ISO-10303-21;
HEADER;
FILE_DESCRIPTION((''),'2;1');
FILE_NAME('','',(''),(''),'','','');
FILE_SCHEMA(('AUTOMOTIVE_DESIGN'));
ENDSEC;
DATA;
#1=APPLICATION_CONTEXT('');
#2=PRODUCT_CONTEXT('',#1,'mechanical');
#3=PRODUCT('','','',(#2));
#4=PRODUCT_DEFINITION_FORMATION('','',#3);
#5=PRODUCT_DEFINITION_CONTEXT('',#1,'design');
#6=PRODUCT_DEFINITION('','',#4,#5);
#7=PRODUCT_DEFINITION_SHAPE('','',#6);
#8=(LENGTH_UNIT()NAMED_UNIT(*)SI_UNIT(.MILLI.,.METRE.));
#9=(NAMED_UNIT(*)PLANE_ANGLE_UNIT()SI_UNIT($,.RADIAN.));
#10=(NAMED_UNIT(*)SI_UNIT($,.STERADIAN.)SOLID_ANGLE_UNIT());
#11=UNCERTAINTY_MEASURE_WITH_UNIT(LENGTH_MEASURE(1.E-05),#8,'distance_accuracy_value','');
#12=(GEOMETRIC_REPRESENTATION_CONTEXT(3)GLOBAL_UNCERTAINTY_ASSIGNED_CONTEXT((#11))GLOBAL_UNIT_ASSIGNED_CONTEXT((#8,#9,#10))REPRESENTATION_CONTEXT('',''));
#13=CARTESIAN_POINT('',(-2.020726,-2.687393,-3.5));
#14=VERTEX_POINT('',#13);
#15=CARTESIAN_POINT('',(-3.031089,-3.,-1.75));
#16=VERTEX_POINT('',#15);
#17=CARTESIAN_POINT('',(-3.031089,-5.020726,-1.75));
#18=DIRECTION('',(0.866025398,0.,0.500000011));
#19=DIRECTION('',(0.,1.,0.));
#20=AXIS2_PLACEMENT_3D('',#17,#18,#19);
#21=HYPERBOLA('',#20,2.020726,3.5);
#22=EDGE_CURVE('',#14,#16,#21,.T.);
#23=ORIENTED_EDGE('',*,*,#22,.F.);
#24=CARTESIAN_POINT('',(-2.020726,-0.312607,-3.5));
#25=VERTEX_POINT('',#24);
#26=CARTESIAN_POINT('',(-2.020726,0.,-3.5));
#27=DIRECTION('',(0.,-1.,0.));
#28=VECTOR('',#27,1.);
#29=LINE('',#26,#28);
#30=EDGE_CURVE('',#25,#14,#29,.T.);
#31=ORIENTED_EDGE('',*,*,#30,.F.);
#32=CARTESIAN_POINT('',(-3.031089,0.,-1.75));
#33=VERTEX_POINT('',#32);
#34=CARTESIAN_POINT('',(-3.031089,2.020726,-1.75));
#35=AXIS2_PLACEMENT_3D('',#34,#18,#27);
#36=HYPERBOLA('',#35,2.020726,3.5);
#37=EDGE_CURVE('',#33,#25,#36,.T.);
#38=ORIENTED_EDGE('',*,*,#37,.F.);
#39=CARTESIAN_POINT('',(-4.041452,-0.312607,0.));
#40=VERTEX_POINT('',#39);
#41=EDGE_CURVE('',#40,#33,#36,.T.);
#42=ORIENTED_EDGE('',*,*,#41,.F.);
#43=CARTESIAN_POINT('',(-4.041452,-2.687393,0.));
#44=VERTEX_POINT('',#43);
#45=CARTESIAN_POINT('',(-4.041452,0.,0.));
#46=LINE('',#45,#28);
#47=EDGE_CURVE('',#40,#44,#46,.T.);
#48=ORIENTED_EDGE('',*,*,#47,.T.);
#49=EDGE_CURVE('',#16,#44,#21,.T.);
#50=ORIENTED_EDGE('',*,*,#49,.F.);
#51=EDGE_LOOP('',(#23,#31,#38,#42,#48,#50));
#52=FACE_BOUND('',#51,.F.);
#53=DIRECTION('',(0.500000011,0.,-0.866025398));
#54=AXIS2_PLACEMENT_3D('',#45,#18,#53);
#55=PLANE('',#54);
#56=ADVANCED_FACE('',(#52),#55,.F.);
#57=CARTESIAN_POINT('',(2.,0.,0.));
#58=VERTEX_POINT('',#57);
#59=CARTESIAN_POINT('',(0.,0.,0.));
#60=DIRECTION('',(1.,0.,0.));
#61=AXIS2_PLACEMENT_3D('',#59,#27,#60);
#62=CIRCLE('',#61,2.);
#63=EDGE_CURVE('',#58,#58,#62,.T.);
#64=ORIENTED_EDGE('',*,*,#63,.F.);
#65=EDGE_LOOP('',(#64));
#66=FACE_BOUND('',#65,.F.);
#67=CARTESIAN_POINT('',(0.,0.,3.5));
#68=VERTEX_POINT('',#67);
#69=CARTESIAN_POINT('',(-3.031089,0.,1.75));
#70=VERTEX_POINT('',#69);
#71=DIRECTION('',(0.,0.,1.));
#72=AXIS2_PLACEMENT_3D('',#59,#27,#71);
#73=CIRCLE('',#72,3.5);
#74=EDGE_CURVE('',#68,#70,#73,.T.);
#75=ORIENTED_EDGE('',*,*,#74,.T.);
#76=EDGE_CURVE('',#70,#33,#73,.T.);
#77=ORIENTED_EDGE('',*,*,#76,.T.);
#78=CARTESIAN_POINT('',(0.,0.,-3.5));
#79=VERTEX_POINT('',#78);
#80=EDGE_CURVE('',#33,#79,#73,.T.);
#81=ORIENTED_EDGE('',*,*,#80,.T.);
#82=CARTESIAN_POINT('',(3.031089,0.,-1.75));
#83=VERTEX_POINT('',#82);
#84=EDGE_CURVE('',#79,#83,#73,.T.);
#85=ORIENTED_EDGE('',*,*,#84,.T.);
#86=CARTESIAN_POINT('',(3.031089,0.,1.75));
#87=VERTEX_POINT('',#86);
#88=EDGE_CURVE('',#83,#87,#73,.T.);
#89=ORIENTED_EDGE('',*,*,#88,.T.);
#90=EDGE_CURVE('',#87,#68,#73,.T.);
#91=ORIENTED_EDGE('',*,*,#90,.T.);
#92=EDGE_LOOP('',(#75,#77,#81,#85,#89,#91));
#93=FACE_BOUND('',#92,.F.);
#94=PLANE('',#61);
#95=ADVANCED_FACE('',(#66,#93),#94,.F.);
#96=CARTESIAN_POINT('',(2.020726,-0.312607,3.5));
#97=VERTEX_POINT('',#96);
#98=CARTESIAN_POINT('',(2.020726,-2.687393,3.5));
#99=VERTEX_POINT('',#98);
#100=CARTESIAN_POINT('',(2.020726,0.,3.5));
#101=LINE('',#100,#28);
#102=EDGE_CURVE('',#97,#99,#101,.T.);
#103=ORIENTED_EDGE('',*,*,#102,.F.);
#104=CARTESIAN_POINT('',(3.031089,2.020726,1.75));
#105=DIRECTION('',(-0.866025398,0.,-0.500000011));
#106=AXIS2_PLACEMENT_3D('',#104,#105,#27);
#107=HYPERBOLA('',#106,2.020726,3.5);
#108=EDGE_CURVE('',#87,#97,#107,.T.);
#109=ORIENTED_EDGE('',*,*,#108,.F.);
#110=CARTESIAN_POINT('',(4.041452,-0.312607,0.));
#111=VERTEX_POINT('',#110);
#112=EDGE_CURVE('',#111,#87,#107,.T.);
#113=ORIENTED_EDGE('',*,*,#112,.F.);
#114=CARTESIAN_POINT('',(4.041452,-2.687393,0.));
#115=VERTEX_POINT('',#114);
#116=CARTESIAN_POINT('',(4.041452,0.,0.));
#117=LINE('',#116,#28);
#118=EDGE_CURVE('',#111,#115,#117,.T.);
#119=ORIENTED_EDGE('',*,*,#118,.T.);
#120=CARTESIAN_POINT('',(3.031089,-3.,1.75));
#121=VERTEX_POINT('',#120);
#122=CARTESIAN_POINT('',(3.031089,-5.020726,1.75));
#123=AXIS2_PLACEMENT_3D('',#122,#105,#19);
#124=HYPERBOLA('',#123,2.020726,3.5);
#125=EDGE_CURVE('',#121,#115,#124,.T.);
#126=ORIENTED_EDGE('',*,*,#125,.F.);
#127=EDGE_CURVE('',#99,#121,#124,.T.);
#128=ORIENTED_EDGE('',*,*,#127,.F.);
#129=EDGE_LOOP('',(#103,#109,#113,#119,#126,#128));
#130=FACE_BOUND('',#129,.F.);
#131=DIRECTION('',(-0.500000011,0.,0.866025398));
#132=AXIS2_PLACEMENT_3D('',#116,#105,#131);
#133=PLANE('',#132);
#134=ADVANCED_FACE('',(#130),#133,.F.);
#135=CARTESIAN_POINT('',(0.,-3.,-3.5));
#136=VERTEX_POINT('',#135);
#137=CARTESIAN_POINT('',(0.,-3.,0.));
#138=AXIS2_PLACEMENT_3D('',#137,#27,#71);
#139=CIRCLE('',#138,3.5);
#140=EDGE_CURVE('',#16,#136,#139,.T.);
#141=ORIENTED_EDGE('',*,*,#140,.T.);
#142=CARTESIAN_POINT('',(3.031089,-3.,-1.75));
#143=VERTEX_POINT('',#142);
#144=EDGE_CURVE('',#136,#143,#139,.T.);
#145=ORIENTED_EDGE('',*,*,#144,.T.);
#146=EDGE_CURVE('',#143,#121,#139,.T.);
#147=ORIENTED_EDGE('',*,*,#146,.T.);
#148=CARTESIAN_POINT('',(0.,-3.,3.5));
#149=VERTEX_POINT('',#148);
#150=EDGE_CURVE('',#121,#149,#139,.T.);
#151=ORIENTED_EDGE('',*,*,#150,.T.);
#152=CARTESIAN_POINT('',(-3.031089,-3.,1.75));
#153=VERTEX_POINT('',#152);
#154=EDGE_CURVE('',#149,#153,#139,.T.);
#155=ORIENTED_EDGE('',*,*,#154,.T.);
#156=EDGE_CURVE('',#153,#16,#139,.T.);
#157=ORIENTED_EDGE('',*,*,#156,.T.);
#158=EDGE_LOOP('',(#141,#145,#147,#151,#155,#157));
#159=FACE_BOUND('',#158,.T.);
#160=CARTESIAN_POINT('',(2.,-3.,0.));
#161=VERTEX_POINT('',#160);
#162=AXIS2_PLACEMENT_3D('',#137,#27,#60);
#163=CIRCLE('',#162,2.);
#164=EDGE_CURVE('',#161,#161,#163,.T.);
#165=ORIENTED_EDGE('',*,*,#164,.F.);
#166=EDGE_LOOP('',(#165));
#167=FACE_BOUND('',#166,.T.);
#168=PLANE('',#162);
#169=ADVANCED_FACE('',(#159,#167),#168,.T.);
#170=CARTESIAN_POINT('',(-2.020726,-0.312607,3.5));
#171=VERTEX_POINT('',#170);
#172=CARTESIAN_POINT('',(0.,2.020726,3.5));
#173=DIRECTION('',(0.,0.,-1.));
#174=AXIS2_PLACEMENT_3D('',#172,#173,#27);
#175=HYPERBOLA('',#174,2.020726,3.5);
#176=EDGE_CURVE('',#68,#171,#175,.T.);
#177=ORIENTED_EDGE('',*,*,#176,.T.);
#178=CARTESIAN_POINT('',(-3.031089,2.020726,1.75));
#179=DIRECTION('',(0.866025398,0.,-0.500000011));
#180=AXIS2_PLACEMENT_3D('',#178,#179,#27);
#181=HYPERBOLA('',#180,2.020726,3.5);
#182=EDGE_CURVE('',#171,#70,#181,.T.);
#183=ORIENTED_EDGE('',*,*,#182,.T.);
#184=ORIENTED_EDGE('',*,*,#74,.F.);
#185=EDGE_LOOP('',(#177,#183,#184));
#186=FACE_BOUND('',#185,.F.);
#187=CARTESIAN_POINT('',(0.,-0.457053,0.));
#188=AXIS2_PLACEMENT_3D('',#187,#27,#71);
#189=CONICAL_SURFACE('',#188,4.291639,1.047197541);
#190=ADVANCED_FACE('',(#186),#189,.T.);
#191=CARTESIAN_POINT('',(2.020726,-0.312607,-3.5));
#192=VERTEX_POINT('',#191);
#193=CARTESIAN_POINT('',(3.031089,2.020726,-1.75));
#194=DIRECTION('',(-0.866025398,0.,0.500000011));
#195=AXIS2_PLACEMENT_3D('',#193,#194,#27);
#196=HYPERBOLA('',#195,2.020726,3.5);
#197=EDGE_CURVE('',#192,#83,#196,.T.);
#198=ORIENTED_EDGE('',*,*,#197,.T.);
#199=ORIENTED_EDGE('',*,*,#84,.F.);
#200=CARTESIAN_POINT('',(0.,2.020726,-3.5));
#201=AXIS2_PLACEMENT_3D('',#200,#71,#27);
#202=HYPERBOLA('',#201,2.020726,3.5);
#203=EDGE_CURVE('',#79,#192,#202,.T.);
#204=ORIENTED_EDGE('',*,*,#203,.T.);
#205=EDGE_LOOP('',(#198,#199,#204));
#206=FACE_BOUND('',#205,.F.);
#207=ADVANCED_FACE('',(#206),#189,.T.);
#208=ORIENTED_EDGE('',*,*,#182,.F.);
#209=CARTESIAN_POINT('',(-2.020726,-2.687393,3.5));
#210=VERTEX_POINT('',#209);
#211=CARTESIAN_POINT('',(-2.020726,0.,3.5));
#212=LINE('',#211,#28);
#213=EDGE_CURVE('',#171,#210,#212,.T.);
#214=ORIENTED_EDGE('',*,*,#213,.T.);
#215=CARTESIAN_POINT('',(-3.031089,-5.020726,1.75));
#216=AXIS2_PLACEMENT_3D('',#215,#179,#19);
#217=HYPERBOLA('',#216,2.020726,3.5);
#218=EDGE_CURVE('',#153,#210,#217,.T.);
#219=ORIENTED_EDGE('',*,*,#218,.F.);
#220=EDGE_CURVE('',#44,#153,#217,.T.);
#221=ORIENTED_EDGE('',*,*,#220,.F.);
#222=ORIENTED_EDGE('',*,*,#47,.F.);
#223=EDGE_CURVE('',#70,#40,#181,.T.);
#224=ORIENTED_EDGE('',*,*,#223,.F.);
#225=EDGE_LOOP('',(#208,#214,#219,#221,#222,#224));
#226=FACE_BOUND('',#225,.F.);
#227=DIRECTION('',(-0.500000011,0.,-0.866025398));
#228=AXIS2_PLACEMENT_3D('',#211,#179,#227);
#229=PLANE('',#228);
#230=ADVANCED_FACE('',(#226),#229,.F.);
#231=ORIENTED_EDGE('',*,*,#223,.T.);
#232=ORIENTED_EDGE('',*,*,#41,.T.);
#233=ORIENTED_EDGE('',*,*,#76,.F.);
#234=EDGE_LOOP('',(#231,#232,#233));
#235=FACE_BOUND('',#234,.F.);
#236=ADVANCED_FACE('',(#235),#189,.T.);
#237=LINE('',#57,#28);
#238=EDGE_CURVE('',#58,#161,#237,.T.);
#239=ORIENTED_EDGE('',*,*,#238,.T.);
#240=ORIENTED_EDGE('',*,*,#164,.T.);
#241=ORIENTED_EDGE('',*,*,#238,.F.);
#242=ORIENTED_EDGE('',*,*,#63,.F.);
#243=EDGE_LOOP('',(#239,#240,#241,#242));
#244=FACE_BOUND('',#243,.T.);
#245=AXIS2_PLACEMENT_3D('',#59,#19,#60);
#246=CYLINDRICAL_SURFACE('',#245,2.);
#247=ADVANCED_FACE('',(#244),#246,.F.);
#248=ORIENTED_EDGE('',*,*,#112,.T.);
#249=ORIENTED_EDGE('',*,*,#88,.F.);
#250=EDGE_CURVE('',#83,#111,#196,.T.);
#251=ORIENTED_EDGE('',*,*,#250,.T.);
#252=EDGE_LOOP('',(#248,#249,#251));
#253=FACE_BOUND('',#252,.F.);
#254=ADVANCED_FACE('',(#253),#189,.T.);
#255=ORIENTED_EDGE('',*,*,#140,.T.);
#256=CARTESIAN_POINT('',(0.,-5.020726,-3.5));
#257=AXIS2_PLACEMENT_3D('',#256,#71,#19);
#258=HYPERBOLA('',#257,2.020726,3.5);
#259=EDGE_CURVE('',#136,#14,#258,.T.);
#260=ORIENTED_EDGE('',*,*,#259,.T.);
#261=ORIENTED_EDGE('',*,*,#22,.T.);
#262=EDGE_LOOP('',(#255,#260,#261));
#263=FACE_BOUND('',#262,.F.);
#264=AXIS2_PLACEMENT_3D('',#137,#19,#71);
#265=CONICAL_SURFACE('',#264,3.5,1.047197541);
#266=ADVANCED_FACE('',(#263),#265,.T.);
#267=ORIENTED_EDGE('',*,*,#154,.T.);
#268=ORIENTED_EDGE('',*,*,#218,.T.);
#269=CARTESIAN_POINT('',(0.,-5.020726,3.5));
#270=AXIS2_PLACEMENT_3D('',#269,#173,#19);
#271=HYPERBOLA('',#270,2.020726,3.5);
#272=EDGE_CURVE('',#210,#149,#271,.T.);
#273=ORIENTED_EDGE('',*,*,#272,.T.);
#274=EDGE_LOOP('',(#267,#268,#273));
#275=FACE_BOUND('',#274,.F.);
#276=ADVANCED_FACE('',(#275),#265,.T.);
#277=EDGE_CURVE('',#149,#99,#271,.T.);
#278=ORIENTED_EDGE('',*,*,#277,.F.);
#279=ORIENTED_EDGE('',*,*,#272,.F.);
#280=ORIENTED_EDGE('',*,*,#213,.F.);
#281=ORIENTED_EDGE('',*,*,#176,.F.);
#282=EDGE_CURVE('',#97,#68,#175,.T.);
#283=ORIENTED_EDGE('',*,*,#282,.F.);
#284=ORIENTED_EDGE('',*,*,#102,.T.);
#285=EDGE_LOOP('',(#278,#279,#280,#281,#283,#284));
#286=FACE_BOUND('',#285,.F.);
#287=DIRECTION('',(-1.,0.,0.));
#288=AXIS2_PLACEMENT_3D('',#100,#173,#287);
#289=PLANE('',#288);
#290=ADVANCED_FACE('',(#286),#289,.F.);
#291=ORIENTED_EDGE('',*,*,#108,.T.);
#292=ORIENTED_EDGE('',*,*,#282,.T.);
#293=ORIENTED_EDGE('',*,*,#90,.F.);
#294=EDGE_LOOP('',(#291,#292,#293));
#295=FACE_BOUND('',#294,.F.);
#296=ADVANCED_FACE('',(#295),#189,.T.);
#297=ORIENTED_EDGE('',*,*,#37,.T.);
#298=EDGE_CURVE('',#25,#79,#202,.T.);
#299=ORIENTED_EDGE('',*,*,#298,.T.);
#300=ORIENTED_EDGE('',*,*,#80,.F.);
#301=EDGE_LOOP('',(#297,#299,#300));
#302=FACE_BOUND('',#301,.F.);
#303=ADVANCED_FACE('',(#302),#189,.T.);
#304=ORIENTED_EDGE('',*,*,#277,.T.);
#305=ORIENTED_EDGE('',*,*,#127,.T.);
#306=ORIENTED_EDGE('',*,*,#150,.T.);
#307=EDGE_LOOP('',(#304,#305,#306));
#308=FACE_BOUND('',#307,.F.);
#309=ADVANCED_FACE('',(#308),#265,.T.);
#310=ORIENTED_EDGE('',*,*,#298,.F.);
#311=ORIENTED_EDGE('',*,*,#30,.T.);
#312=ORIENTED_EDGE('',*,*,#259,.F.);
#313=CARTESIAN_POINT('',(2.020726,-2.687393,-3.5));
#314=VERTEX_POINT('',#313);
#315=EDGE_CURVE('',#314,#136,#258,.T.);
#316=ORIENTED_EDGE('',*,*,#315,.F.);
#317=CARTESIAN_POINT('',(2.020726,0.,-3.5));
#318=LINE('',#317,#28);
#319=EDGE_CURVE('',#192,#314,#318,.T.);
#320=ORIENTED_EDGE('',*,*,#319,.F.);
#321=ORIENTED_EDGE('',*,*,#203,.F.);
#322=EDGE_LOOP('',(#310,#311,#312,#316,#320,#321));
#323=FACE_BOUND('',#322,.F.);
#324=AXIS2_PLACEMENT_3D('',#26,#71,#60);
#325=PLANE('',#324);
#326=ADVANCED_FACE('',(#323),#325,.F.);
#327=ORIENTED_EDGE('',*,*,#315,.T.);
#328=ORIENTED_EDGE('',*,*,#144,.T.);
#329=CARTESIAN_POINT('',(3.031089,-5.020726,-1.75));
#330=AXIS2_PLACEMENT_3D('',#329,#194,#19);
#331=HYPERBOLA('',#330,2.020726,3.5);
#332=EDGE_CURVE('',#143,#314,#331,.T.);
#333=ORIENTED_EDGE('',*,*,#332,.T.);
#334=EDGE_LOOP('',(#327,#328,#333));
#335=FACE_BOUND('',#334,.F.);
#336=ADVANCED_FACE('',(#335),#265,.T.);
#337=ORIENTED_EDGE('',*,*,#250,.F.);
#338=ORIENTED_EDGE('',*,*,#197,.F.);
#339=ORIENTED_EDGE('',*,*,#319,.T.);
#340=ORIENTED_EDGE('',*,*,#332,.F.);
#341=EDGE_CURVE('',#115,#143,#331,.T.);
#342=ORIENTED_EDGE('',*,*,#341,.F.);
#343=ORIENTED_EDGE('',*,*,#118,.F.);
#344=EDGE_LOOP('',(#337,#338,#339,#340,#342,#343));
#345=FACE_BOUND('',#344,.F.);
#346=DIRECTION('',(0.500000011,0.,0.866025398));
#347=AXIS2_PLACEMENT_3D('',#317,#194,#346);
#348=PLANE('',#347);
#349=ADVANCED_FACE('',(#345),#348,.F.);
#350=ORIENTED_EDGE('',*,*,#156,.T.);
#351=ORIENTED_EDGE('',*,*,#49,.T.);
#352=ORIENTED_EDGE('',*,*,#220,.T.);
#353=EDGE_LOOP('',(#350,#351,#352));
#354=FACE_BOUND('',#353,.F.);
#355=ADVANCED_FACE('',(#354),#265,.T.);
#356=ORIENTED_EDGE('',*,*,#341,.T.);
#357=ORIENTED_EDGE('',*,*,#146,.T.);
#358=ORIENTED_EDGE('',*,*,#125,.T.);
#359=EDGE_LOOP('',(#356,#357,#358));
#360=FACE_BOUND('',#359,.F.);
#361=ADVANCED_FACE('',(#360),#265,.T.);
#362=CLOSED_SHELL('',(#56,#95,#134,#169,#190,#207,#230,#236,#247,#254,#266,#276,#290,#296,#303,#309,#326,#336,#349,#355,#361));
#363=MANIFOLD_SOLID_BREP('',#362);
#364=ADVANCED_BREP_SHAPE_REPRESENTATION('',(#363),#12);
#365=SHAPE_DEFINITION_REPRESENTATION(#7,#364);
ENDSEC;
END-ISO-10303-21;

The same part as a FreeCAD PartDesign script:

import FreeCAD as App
import Part
import Sketcher
from FreeCAD import Vector
Q = App.Units.Quantity

doc = App.newDocument("Part")
body = doc.addObject("PartDesign::Body", "Body")

# Sketch on XZ plane
sketch1 = body.newObject("Sketcher::SketchObject", "Sketch")
sketch1.AttachmentSupport = (doc.getObject("XZ_Plane"), [""])
sketch1.MapMode = "FlatFace"
sketch1.addGeometry(Part.LineSegment(Vector(2, 3.5, 0), Vector(-2, 3.5, 0)), False)
sketch1.addGeometry(Part.LineSegment(Vector(-2, 3.5, 0), Vector(-4, 0, 0)), False)
sketch1.addGeometry(Part.LineSegment(Vector(-4, 0, 0), Vector(-2, -3.5, 0)), False)
sketch1.addGeometry(Part.LineSegment(Vector(-2, -3.5, 0), Vector(2, -3.5, 0)), False)
sketch1.addGeometry(Part.LineSegment(Vector(2, -3.5, 0), Vector(4, 0, 0)), False)
sketch1.addGeometry(Part.LineSegment(Vector(4, 0, 0), Vector(2, 3.5, 0)), False)
sketch1.addGeometry(Part.Circle(Vector(0, 0, 0), Vector(0, 0, 1), 2), False)
sketch1.addConstraint(Sketcher.Constraint("Coincident", 0, 2, 1, 1))
sketch1.addConstraint(Sketcher.Constraint("Coincident", 1, 2, 2, 1))
sketch1.addConstraint(Sketcher.Constraint("Coincident", 2, 2, 3, 1))
sketch1.addConstraint(Sketcher.Constraint("Coincident", 3, 2, 4, 1))
sketch1.addConstraint(Sketcher.Constraint("Coincident", 4, 2, 5, 1))
sketch1.addConstraint(Sketcher.Constraint("Coincident", 5, 2, 0, 1))
sketch1.addConstraint(Sketcher.Constraint("Horizontal", 0))
sketch1.addConstraint(Sketcher.Constraint("Horizontal", 3))
sketch1.addConstraint(Sketcher.Constraint("Coincident", 6, 3, -1, 1))
sketch1.addConstraint(Sketcher.Constraint("Symmetric", 0, 2, 3, 2, -1, 1))
sketch1.addConstraint(Sketcher.Constraint("Symmetric", 1, 2, 4, 2, -1, 1))
sketch1.addConstraint(Sketcher.Constraint("PointOnObject", 1, 2, -1))
sketch1.addConstraint(Sketcher.Constraint("Parallel", 2, 5))
sketch1.addConstraint(Sketcher.Constraint("Vertical", 0, 2, 2, 2))
sketch1.addConstraint(Sketcher.Constraint("Diameter", 6, 4.0))
sketch1.addConstraint(Sketcher.Constraint("Angle", 1, Q("-120.000001 deg")))
sketch1.addConstraint(Sketcher.Constraint("DistanceY", 2, 2, 0, 2, 7.0))
sketch1.addConstraint(Sketcher.Constraint("DistanceX", 0, 2, 0, 1, 4.041452))
pad1 = body.newObject("PartDesign::Pad", "Pad")
pad1.Profile = sketch1
pad1.Length = 3

# Sketch on YZ plane
sketch2 = body.newObject("Sketcher::SketchObject", "Sketch001")
sketch2.AttachmentSupport = (doc.getObject("YZ_Plane"), [""])
sketch2.MapMode = "FlatFace"
sketch2.addGeometry(Part.LineSegment(Vector(0, 4.29, 0), Vector(-0.46, 4.29, 0)), False)
sketch2.addGeometry(Part.LineSegment(Vector(-0.46, 4.29, 0), Vector(0, 3.5, 0)), False)
sketch2.addGeometry(Part.LineSegment(Vector(0, 3.5, 0), Vector(0, 4.29, 0)), False)
sketch2.addGeometry(Part.LineSegment(Vector(-2.54, 4.29, 0), Vector(-3, 4.29, 0)), False)
sketch2.addGeometry(Part.LineSegment(Vector(-3, 4.29, 0), Vector(-3, 3.5, 0)), False)
sketch2.addGeometry(Part.LineSegment(Vector(-3, 3.5, 0), Vector(-2.54, 4.29, 0)), False)
sketch2.addConstraint(Sketcher.Constraint("Coincident", 0, 2, 1, 1))
sketch2.addConstraint(Sketcher.Constraint("Coincident", 1, 2, 2, 1))
sketch2.addConstraint(Sketcher.Constraint("Coincident", 2, 2, 0, 1))
sketch2.addConstraint(Sketcher.Constraint("Coincident", 3, 2, 4, 1))
sketch2.addConstraint(Sketcher.Constraint("Coincident", 4, 2, 5, 1))
sketch2.addConstraint(Sketcher.Constraint("Coincident", 5, 2, 3, 1))
sketch2.addConstraint(Sketcher.Constraint("Horizontal", 0))
sketch2.addConstraint(Sketcher.Constraint("Vertical", 2))
sketch2.addConstraint(Sketcher.Constraint("Horizontal", 3))
sketch2.addConstraint(Sketcher.Constraint("Vertical", 4))
sketch2.addConstraint(Sketcher.Constraint("PointOnObject", 1, 2, -2))
sketch2.addConstraint(Sketcher.Constraint("Horizontal", 2, 2, 3, 2))
sketch2.addConstraint(Sketcher.Constraint("Horizontal", 1, 2, 4, 2))
sketch2.addConstraint(Sketcher.Constraint("Equal", 0, 3))
sketch2.addConstraint(Sketcher.Constraint("Angle", 1, Q("-59.999999 deg")))
sketch2.addConstraint(Sketcher.Constraint("DistanceX", 3, 2, -1, 1, 3.0))
sketch2.addConstraint(Sketcher.Constraint("DistanceY", -1, 1, 1, 2, 3.5))
sketch2.addConstraint(Sketcher.Constraint("DistanceY", 2, 1, 2, 2, 0.791639))
groove = body.newObject("PartDesign::Groove", "Groove")
groove.Profile = sketch2
groove.ReferenceAxis = (sketch2, ["H_Axis"])
groove.Angle = 360

doc.recompute()
